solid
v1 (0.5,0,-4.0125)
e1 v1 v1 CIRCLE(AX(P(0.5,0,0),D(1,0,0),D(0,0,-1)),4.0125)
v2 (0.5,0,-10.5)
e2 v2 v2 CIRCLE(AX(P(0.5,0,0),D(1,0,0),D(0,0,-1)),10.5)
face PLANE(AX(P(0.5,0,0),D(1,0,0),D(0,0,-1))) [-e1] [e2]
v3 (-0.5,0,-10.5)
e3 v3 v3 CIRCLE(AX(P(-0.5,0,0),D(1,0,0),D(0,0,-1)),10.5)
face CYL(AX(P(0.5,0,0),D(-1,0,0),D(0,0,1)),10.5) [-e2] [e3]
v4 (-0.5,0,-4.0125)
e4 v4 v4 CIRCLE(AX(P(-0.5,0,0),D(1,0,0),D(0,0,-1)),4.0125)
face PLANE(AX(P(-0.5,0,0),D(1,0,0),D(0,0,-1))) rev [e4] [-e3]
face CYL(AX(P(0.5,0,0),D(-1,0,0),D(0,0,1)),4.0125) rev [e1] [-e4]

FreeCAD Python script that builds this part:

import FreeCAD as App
import Part
import Sketcher

doc = App.newDocument("Part")
body = doc.addObject("PartDesign::Body", "Body")

# Sketch on YZ plane
sketch1 = body.newObject("Sketcher::SketchObject", "Sketch")
sketch1.AttachmentSupport = (doc.getObject("YZ_Plane"), [""])
sketch1.MapMode = "FlatFace"
sketch1.addGeometry(Part.Circle(App.Vector(0, 0, 0), App.Vector(0, 0, 1), 10.5), False)
sketch1.addGeometry(Part.Circle(App.Vector(0, 0, 0), App.Vector(0, 0, 1), 4.0125), False)
sketch1.addConstraint(Sketcher.Constraint("Coincident", 0, 3, -1, 1))
sketch1.addConstraint(Sketcher.Constraint("Coincident", 1, 3, -1, 1))
sketch1.addConstraint(Sketcher.Constraint("Diameter", 0, 21.0))
sketch1.addConstraint(Sketcher.Constraint("Diameter", 1, 8.025))
pad1 = body.newObject("PartDesign::Pad", "Pad")
pad1.Profile = sketch1
pad1.Type = "TwoLengths"
pad1.Length = 0.5
pad1.Length2 = 0.5

doc.recompute()
